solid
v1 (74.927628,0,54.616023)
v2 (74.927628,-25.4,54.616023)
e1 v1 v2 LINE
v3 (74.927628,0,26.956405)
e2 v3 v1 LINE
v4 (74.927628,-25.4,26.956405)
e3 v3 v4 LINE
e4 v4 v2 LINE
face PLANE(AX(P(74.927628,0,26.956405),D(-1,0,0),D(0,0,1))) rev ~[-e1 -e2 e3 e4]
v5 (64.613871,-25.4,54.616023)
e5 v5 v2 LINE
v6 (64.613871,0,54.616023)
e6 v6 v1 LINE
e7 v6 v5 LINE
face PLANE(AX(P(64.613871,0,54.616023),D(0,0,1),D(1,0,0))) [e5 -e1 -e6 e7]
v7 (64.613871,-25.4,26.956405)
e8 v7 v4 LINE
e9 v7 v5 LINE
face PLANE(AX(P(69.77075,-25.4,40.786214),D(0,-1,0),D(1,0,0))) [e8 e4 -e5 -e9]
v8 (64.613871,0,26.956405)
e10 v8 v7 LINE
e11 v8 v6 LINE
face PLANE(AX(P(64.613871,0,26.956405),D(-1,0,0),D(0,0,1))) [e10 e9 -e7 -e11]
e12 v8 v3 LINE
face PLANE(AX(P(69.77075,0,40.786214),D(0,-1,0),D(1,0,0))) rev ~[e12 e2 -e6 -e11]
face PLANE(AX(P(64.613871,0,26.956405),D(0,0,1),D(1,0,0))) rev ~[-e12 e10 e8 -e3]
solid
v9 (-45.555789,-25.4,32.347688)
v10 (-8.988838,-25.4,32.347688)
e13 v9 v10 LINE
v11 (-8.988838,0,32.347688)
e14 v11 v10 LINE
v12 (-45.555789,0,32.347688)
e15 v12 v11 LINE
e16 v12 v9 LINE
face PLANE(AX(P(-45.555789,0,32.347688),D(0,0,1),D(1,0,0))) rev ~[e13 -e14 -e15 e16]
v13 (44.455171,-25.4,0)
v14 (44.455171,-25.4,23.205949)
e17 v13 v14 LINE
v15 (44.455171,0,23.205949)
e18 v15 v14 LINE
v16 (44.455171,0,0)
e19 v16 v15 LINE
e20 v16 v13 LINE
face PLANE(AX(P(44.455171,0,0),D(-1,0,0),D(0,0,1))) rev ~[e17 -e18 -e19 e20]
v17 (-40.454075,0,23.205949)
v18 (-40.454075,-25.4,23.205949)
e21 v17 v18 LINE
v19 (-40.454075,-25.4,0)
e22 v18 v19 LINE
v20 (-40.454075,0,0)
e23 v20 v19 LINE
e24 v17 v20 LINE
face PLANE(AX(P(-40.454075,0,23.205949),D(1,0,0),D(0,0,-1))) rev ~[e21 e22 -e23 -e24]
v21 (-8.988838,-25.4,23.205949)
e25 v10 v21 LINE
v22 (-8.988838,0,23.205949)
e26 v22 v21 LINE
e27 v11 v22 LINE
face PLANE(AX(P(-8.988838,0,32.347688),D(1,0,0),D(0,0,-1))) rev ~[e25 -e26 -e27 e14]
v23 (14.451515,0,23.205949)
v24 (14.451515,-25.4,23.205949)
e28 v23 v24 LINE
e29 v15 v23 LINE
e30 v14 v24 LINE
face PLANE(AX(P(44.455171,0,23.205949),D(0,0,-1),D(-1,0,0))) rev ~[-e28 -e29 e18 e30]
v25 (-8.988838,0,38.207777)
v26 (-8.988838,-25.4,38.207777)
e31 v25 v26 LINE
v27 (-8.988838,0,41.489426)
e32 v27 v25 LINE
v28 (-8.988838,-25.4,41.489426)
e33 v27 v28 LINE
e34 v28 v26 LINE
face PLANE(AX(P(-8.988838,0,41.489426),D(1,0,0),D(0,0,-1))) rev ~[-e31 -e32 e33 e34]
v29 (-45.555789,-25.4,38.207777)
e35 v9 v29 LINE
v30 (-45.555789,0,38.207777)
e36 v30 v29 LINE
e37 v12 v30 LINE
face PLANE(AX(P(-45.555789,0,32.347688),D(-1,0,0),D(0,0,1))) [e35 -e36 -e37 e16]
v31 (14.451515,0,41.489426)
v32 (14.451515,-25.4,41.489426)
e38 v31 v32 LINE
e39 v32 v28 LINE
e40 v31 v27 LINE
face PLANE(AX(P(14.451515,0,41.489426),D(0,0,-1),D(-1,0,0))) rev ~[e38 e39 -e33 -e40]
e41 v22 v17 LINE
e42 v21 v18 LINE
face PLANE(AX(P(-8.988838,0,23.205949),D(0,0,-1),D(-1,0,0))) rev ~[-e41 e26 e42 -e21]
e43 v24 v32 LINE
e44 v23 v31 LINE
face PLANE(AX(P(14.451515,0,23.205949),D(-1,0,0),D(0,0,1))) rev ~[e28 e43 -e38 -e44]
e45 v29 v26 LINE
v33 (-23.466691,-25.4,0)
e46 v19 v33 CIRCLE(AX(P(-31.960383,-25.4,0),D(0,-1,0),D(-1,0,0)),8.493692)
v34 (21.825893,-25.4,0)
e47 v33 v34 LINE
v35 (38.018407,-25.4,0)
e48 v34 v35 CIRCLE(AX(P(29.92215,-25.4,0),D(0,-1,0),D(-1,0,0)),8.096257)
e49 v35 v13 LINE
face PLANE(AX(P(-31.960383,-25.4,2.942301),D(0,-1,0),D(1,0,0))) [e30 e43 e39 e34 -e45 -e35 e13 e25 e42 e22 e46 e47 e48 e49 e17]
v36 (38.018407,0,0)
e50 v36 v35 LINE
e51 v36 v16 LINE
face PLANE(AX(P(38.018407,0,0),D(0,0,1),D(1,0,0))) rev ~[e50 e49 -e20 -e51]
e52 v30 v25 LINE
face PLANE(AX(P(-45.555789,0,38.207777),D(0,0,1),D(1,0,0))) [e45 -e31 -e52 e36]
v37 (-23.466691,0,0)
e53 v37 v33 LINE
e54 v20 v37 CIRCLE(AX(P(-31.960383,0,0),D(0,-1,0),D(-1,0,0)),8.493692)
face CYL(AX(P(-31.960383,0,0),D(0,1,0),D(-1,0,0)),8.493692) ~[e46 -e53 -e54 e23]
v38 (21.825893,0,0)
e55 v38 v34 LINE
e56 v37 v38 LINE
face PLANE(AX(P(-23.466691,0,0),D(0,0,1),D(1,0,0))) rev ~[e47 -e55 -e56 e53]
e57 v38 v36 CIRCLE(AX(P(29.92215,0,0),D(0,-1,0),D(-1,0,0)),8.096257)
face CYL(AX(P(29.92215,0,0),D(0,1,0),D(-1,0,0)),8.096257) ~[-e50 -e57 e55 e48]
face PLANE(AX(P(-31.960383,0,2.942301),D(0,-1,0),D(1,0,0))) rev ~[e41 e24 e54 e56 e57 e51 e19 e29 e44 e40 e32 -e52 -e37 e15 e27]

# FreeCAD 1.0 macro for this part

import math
import FreeCAD as App
import Part
import Sketcher
Q = App.Units.Quantity


def add_polygon(sketch, points):
    """Adds a closed chain of lines whose ends are joined by coincident constraints."""
    first, n = sketch.GeometryCount, len(points)
    for a, b in zip(points, points[1:] + points[:1]):
        sketch.addGeometry(Part.LineSegment(App.Vector(*a, 0), App.Vector(*b, 0)), False)
    for i in range(n):
        sketch.addConstraint(Sketcher.Constraint("Coincident", first + i, 2, first + (i + 1) % n, 1))

doc = App.newDocument("Part")
body = doc.addObject("PartDesign::Body", "Body")

# Sketch on XZ plane
sketch1 = doc.addObject("Sketcher::SketchObject", "Sketch")
body.addObject(sketch1)
sketch1.AttachmentSupport = (doc.XZ_Plane, [""])
sketch1.MapMode = "FlatFace"
sketch1.addGeometry([
    Part.ArcOfCircle(Part.Circle(App.Vector(-31.960383, 0, 0), App.Vector(0, 0, 1), 8.493692), math.radians(180), math.radians(360)),  # 0
    Part.LineSegment(App.Vector(-23.466691, 0, 0), App.Vector(21.825893, 0, 0)),  # 1
    Part.ArcOfCircle(Part.Circle(App.Vector(29.92215, 0, 0), App.Vector(0, 0, 1), 8.096257), math.radians(180), math.radians(360)),  # 2
    Part.LineSegment(App.Vector(38.018407, 0, 0), App.Vector(44.455171, 0, 0)),  # 3
    Part.LineSegment(App.Vector(44.455171, 0, 0), App.Vector(44.455171, 23.205949, 0)),  # 4
    Part.LineSegment(App.Vector(44.455171, 23.205949, 0), App.Vector(14.451515, 23.205949, 0)),  # 5
    Part.LineSegment(App.Vector(14.451515, 23.205949, 0), App.Vector(14.451515, 41.489426, 0)),  # 6
    Part.LineSegment(App.Vector(14.451515, 41.489426, 0), App.Vector(-8.988838, 41.489426, 0)),  # 7
    Part.LineSegment(App.Vector(-8.988838, 41.489426, 0), App.Vector(-8.988838, 38.207777, 0)),  # 8
    Part.LineSegment(App.Vector(-8.988838, 38.207777, 0), App.Vector(-45.555789, 38.207777, 0)),  # 9
    Part.LineSegment(App.Vector(-45.555789, 38.207777, 0), App.Vector(-45.555789, 32.347688, 0)),  # 10
    Part.LineSegment(App.Vector(-45.555789, 32.347688, 0), App.Vector(-8.988838, 32.347688, 0)),  # 11
    Part.LineSegment(App.Vector(-8.988838, 32.347688, 0), App.Vector(-8.988838, 23.205949, 0)),  # 12
    Part.LineSegment(App.Vector(-8.988838, 23.205949, 0), App.Vector(-40.454075, 23.205949, 0)),  # 13
    Part.LineSegment(App.Vector(-40.454075, 23.205949, 0), App.Vector(-40.454075, 0, 0)),  # 14
], False)
sketch1.addConstraint([
    Sketcher.Constraint("Coincident", 0, 2, 1, 1),
    Sketcher.Constraint("Coincident", 1, 2, 2, 1),
    Sketcher.Constraint("Coincident", 2, 2, 3, 1),
    Sketcher.Constraint("Coincident", 3, 2, 4, 1),
    Sketcher.Constraint("Coincident", 4, 2, 5, 1),
    Sketcher.Constraint("Coincident", 5, 2, 6, 1),
    Sketcher.Constraint("Coincident", 6, 2, 7, 1),
    Sketcher.Constraint("Coincident", 7, 2, 8, 1),
    Sketcher.Constraint("Coincident", 8, 2, 9, 1),
    Sketcher.Constraint("Coincident", 9, 2, 10, 1),
    Sketcher.Constraint("Coincident", 10, 2, 11, 1),
    Sketcher.Constraint("Coincident", 11, 2, 12, 1),
    Sketcher.Constraint("Coincident", 12, 2, 13, 1),
    Sketcher.Constraint("Coincident", 13, 2, 14, 1),
    Sketcher.Constraint("Tangent", 14, 2, 0, 1),
    Sketcher.Constraint("Horizontal", 1),
    Sketcher.Constraint("Horizontal", 3),
    Sketcher.Constraint("Vertical", 4),
    Sketcher.Constraint("Horizontal", 5),
    Sketcher.Constraint("Vertical", 6),
    Sketcher.Constraint("Horizontal", 7),
    Sketcher.Constraint("Vertical", 8),
    Sketcher.Constraint("Horizontal", 9),
    Sketcher.Constraint("Vertical", 10),
    Sketcher.Constraint("Horizontal", 11),
    Sketcher.Constraint("Vertical", 12),
    Sketcher.Constraint("Horizontal", 13),
    Sketcher.Constraint("Vertical", 14),
    Sketcher.Constraint("PointOnObject", 0, 3, -1),
    Sketcher.Constraint("PointOnObject", 2, 3, -1),
    Sketcher.Constraint("PointOnObject", 0, 2, -1),
    Sketcher.Constraint("PointOnObject", 2, 2, -1),
    Sketcher.Constraint("Horizontal", 5, 2, 12, 2),
    Sketcher.Constraint("Vertical", 8, 2, 11, 2),
    Sketcher.Constraint("Radius", 0, 8.493692),
    Sketcher.Constraint("Radius", 2, 8.096257),
    Sketcher.Constraint("DistanceX", 9, 2, 9, 1, 36.566951),
    Sketcher.Constraint("DistanceY", 4, 1, 4, 2, 23.205949),
    Sketcher.Constraint("DistanceY", 8, 2, 8, 1, 3.281649),
    Sketcher.Constraint("DistanceY", 10, 2, 10, 1, 5.860089),
    Sketcher.Constraint("DistanceY", 12, 2, 12, 1, 9.141739),
    Sketcher.Constraint("DistanceX", 9, 2, 0, 2, 22.089098),
    Sketcher.Constraint("DistanceX", 1, 1, 1, 2, 45.292584),
    Sketcher.Constraint("DistanceX", 3, 1, 3, 2, 6.436764),
    Sketcher.Constraint("DistanceX", 5, 2, 5, 1, 30.003656),
    Sketcher.Constraint("DistanceX", -1, 1, 2, 3, 29.92215),
])
pad1 = doc.addObject("PartDesign::Pad", "Pad")
body.addObject(pad1)
pad1.Profile = sketch1
pad1.Length = Q("1 in")
body2 = doc.addObject("PartDesign::Body", "Body001")

# Sketch on XZ plane
sketch2 = doc.addObject("Sketcher::SketchObject", "Sketch001")
body2.addObject(sketch2)
sketch2.AttachmentSupport = (doc.getObject("XZ_Plane001"), [""])
sketch2.MapMode = "FlatFace"
add_polygon(sketch2, [(64.613871, 54.616023), (64.613871, 26.956405), (74.927628, 26.956405), (74.927628, 54.616023)])  # lines 0-3
sketch2.addConstraint([
    Sketcher.Constraint("Vertical", 0),
    Sketcher.Constraint("Horizontal", 1),
    Sketcher.Constraint("Vertical", 2),
    Sketcher.Constraint("Horizontal", 3),
    Sketcher.Constraint("DistanceX", 1, 1, 1, 2, 10.313757),
    Sketcher.Constraint("DistanceY", 0, 2, 0, 1, 27.659617),
    Sketcher.Constraint("DistanceX", -1, 1, 0, 2, 64.613871),
    Sketcher.Constraint("DistanceY", -1, 1, 0, 2, 26.956405),
])
pad2 = doc.addObject("PartDesign::Pad", "Pad001")
body2.addObject(pad2)
pad2.Profile = sketch2
pad2.Length = Q("1 in")

doc.recompute()
